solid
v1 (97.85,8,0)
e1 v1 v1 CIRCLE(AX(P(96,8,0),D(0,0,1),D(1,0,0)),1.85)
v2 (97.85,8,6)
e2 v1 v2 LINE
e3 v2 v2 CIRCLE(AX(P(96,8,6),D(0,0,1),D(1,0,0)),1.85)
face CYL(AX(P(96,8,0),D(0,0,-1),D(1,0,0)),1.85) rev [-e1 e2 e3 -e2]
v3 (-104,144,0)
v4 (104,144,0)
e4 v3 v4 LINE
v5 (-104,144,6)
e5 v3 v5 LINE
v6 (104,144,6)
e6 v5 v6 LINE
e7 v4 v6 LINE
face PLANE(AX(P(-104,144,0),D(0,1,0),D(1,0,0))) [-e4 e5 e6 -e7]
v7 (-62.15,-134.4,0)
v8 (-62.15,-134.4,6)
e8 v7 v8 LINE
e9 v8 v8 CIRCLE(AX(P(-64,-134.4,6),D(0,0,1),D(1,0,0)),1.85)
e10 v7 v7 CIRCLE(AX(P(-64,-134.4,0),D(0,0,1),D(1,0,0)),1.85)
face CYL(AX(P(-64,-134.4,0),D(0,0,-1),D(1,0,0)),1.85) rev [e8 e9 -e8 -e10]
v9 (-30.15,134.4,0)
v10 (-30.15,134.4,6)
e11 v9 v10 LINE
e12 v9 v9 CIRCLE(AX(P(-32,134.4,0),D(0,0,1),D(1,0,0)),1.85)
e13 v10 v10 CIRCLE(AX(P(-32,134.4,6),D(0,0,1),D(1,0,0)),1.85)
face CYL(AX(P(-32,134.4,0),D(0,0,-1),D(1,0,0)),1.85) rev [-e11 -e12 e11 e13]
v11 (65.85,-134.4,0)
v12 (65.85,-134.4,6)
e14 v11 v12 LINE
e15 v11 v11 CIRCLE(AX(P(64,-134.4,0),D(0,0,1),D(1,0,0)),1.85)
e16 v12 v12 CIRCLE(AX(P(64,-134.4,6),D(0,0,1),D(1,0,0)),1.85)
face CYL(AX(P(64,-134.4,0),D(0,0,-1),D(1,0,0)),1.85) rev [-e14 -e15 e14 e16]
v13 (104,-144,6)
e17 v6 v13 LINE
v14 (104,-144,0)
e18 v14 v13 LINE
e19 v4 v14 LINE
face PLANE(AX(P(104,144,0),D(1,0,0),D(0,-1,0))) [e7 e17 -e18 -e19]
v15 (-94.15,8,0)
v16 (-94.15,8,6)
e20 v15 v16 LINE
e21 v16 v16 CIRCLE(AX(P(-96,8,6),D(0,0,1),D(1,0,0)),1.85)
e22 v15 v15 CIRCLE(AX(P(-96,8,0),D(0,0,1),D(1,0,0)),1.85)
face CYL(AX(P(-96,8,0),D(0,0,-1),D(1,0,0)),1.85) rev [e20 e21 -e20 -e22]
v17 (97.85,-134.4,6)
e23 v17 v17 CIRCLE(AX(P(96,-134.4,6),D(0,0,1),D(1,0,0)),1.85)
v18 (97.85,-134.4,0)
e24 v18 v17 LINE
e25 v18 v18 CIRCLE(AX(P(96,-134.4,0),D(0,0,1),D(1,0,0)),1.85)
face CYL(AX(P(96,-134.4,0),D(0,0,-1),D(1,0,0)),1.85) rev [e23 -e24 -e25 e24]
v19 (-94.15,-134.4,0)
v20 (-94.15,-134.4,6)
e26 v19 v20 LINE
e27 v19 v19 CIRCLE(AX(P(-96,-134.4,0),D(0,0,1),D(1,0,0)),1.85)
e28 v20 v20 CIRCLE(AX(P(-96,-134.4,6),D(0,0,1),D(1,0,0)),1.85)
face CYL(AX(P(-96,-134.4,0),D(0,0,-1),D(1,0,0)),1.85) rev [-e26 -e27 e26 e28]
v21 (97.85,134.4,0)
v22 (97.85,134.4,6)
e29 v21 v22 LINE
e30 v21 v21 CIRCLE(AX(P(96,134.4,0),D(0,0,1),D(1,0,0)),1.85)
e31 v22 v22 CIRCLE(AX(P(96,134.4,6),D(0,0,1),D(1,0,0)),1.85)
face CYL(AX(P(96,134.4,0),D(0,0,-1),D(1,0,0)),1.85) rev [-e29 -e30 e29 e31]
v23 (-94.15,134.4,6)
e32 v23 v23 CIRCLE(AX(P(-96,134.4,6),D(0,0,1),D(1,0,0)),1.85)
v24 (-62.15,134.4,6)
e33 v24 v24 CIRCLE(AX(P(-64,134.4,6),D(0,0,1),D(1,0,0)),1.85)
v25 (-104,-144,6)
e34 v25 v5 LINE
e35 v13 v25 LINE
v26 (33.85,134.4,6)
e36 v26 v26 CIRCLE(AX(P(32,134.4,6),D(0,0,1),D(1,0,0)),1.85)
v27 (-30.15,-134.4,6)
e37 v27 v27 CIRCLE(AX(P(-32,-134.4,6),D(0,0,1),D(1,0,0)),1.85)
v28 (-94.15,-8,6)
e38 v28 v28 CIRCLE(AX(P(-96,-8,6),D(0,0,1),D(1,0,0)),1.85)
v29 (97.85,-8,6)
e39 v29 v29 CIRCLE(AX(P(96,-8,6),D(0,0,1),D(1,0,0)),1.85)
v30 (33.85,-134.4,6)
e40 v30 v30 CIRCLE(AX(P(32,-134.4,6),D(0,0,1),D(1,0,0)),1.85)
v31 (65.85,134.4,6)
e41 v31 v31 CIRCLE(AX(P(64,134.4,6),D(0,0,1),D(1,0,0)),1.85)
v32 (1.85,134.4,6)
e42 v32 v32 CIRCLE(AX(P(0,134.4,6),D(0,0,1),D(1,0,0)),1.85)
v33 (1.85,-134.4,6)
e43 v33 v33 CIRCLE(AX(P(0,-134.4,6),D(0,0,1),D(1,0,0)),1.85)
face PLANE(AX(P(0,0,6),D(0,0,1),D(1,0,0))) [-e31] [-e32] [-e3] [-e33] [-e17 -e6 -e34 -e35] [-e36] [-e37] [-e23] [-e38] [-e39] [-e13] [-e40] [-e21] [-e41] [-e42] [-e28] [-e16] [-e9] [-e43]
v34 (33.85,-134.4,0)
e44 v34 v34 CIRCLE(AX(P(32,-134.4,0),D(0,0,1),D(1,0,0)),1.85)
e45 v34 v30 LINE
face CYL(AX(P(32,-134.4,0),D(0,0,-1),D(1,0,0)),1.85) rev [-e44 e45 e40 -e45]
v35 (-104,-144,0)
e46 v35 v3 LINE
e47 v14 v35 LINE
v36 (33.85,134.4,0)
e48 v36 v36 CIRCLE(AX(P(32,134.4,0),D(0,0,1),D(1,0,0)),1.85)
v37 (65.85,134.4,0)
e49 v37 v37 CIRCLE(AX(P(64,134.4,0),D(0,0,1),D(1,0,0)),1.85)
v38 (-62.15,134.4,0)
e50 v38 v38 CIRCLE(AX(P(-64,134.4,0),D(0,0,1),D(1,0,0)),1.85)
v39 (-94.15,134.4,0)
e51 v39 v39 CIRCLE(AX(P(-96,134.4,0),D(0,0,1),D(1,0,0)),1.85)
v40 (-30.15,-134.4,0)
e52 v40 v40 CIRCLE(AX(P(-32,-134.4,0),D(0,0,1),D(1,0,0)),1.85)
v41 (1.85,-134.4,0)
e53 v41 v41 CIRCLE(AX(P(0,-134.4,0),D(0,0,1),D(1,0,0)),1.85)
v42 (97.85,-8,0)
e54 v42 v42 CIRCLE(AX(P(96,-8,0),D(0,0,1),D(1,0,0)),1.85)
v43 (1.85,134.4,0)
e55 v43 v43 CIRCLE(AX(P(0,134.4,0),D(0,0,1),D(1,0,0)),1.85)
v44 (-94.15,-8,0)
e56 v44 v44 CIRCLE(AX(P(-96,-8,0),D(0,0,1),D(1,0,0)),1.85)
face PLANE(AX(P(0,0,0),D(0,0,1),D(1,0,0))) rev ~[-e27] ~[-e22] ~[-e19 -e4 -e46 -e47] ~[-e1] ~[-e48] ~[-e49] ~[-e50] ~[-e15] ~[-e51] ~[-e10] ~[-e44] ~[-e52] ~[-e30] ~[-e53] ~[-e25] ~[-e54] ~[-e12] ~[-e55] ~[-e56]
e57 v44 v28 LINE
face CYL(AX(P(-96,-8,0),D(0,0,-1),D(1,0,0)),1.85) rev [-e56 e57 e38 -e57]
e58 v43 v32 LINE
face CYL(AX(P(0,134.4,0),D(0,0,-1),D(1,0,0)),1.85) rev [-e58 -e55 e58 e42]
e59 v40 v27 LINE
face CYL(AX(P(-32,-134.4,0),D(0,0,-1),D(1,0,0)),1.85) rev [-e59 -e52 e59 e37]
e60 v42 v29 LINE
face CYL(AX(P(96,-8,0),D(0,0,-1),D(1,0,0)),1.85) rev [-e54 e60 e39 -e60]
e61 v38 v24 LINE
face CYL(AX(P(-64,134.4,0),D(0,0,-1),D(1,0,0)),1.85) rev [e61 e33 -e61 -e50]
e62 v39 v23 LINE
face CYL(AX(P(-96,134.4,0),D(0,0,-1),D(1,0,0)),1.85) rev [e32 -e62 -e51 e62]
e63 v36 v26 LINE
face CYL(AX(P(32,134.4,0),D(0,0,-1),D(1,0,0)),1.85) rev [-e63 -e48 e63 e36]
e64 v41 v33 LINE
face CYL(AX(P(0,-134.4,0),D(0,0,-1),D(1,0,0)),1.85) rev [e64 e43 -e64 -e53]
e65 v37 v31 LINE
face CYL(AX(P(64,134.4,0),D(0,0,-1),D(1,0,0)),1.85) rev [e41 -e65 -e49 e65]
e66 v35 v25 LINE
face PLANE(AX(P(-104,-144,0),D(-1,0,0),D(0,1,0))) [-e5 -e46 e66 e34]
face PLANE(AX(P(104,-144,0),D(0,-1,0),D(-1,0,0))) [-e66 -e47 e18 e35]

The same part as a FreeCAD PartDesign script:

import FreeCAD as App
import Part
import Sketcher


def add_polygon(sketch, points):
    """Adds a closed chain of lines whose ends are joined by coincident constraints."""
    first, n = sketch.GeometryCount, len(points)
    for a, b in zip(points, points[1:] + points[:1]):
        sketch.addGeometry(Part.LineSegment(App.Vector(*a, 0), App.Vector(*b, 0)), False)
    for i in range(n):
        sketch.addConstraint(Sketcher.Constraint("Coincident", first + i, 2, first + (i + 1) % n, 1))

doc = App.newDocument("Part")
body = doc.addObject("PartDesign::Body", "Body")

# Sketch on XY plane
sketch1 = doc.addObject("Sketcher::SketchObject", "Sketch")
body.addObject(sketch1)
sketch1.AttachmentSupport = (doc.XY_Plane, [""])
sketch1.MapMode = "FlatFace"
add_polygon(sketch1, [(-104, -144), (104, -144), (104, 144), (-104, 144)])  # lines 0-3
sketch1.addGeometry(Part.Circle(App.Vector(-96, -134.4, 0), App.Vector(0, 0, 1), 1.9), False)  # 4
sketch1.addGeometry(Part.Circle(App.Vector(-64, -134.4, 0), App.Vector(0, 0, 1), 1.9), False)  # 5
sketch1.addGeometry(Part.Circle(App.Vector(-32, -134.4, 0), App.Vector(0, 0, 1), 1.9), False)  # 6
sketch1.addGeometry(Part.Circle(App.Vector(-96, -8, 0), App.Vector(0, 0, 1), 1.9), False)  # 7
sketch1.addGeometry(Part.Circle(App.Vector(0, -134.4, 0), App.Vector(0, 0, 1), 1.9), False)  # 8
sketch1.addGeometry(Part.Circle(App.Vector(32, -134.4, 0), App.Vector(0, 0, 1), 1.9), False)  # 9
sketch1.addGeometry(Part.Circle(App.Vector(64, -134.4, 0), App.Vector(0, 0, 1), 1.9), False)  # 10
sketch1.addGeometry(Part.Circle(App.Vector(96, -134.4, 0), App.Vector(0, 0, 1), 1.9), False)  # 11
sketch1.addGeometry(Part.Circle(App.Vector(96, -8, 0), App.Vector(0, 0, 1), 1.9), False)  # 12
sketch1.addGeometry(Part.Circle(App.Vector(-96, 8, 0), App.Vector(0, 0, 1), 1.9), False)  # 13
sketch1.addGeometry(Part.Circle(App.Vector(-96, 134.4, 0), App.Vector(0, 0, 1), 1.9), False)  # 14
sketch1.addGeometry(Part.Circle(App.Vector(-64, 134.4, 0), App.Vector(0, 0, 1), 1.9), False)  # 15
sketch1.addGeometry(Part.Circle(App.Vector(-32, 134.4, 0), App.Vector(0, 0, 1), 1.9), False)  # 16
sketch1.addGeometry(Part.Circle(App.Vector(96, 8, 0), App.Vector(0, 0, 1), 1.9), False)  # 17
sketch1.addGeometry(Part.Circle(App.Vector(0, 134.4, 0), App.Vector(0, 0, 1), 1.9), False)  # 18
sketch1.addGeometry(Part.Circle(App.Vector(32, 134.4, 0), App.Vector(0, 0, 1), 1.9), False)  # 19
sketch1.addGeometry(Part.Circle(App.Vector(64, 134.4, 0), App.Vector(0, 0, 1), 1.9), False)  # 20
sketch1.addGeometry(Part.Circle(App.Vector(96, 134.4, 0), App.Vector(0, 0, 1), 1.9), False)  # 21
sketch1.addConstraint([
    Sketcher.Constraint("Horizontal", 0),
    Sketcher.Constraint("Vertical", 1),
    Sketcher.Constraint("Horizontal", 2),
    Sketcher.Constraint("Vertical", 3),
    Sketcher.Constraint("Equal", 4, 5),
    Sketcher.Constraint("Equal", 5, 6),
    Sketcher.Constraint("Equal", 6, 7),
    Sketcher.Constraint("Equal", 7, 8),
    Sketcher.Constraint("Equal", 8, 9),
    Sketcher.Constraint("Equal", 9, 10),
    Sketcher.Constraint("Equal", 10, 11),
    Sketcher.Constraint("Equal", 11, 12),
    Sketcher.Constraint("Equal", 12, 13),
    Sketcher.Constraint("Equal", 13, 14),
    Sketcher.Constraint("Equal", 14, 15),
    Sketcher.Constraint("Equal", 15, 16),
    Sketcher.Constraint("Equal", 16, 17),
    Sketcher.Constraint("Equal", 17, 18),
    Sketcher.Constraint("Equal", 18, 19),
    Sketcher.Constraint("Equal", 19, 20),
    Sketcher.Constraint("Equal", 20, 21),
    Sketcher.Constraint("Symmetric", 12, 3, 13, 3, -1, 1),
    Sketcher.Constraint("Symmetric", 11, 3, 14, 3, -1, 1),
    Sketcher.Constraint("Symmetric", 10, 3, 15, 3, -1, 1),
    Sketcher.Constraint("Symmetric", 9, 3, 16, 3, -1, 1),
    Sketcher.Constraint("Symmetric", 7, 3, 17, 3, -1, 1),
    Sketcher.Constraint("Symmetric", 8, 3, 18, 3, -1, 1),
    Sketcher.Constraint("Symmetric", 6, 3, 19, 3, -1, 1),
    Sketcher.Constraint("Symmetric", 5, 3, 20, 3, -1, 1),
    Sketcher.Constraint("Symmetric", 4, 3, 21, 3, -1, 1),
    Sketcher.Constraint("Symmetric", 0, 2, 2, 2, -1, 1),
    Sketcher.Constraint("Symmetric", 6, 3, 9, 3, -2),
    Sketcher.Constraint("Symmetric", 5, 3, 10, 3, -2),
    Sketcher.Constraint("Symmetric", 4, 3, 11, 3, -2),
    Sketcher.Constraint("Symmetric", 7, 3, 12, 3, -2),
    Sketcher.Constraint("PointOnObject", 8, 3, -2),
    Sketcher.Constraint("Horizontal", 4, 3, 5, 3),
    Sketcher.Constraint("Horizontal", 5, 3, 6, 3),
    Sketcher.Constraint("Horizontal", 6, 3, 8, 3),
    Sketcher.Constraint("Vertical", 4, 3, 7, 3),
    Sketcher.Constraint("Diameter", 4, 3.7),
    Sketcher.Constraint("DistanceX", 0, 1, 0, 2, 208.0),
    Sketcher.Constraint("DistanceY", 1, 1, 1, 2, 288.0),
    Sketcher.Constraint("DistanceX", 6, 3, -1, 1, 32.0),
    Sketcher.Constraint("DistanceY", 7, 3, -1, 1, 8.0),
    Sketcher.Constraint("DistanceX", 4, 3, 5, 3, 32.0),
    Sketcher.Constraint("DistanceX", 5, 3, 6, 3, 32.0),
    Sketcher.Constraint("DistanceY", 0, 2, 11, 3, 9.6),
])
pad1 = doc.addObject("PartDesign::Pad", "Pad")
body.addObject(pad1)
pad1.Profile = sketch1
pad1.Length = 6

doc.recompute()
